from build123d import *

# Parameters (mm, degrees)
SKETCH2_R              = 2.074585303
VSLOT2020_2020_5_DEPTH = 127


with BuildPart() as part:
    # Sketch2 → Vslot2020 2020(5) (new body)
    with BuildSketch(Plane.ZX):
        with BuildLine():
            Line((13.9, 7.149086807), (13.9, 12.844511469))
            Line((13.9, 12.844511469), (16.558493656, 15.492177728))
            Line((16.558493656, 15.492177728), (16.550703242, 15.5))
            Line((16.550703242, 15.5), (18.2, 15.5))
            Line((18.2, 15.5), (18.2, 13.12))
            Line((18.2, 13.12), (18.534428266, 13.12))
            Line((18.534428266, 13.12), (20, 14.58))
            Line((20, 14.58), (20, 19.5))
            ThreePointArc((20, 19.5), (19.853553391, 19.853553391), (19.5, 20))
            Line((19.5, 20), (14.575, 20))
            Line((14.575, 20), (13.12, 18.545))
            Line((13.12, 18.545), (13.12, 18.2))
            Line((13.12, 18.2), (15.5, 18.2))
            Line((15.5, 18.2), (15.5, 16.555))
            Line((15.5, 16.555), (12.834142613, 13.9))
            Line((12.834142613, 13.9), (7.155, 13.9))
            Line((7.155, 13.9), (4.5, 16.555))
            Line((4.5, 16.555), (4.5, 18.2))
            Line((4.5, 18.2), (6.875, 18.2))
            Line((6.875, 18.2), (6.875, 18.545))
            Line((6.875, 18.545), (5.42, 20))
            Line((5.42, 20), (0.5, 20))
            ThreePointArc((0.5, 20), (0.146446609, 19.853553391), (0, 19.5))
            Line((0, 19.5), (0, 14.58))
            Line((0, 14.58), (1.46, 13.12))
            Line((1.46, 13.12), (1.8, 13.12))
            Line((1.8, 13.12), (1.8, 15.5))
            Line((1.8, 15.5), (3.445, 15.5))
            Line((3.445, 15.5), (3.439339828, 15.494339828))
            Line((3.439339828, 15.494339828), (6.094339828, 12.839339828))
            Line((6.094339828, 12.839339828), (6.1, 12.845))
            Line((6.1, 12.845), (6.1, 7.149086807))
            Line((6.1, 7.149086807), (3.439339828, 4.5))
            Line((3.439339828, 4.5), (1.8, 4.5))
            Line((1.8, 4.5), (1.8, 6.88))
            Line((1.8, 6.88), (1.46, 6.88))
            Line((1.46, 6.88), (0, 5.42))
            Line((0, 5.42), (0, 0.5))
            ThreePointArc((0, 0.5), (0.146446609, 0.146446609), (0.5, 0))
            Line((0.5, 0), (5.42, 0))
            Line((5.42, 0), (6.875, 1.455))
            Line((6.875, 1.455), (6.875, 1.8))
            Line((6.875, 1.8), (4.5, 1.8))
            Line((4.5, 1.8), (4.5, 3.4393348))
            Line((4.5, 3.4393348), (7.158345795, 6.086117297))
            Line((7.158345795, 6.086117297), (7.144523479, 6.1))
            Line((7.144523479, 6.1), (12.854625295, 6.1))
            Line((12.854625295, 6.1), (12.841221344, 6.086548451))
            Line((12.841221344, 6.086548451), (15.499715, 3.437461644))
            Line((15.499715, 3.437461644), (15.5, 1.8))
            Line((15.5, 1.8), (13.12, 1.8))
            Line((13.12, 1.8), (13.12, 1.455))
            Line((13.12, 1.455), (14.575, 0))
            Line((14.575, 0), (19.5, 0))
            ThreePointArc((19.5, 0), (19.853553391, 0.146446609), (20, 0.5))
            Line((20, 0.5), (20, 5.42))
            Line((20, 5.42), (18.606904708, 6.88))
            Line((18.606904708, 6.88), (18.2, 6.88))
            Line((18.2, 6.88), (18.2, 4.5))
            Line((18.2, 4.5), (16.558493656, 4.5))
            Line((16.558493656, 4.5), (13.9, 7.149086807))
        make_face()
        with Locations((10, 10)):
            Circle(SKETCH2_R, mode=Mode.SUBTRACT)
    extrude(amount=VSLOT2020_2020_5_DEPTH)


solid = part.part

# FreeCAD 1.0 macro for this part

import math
import FreeCAD as App
import Part
import Sketcher

V = App.Vector

doc = App.newDocument("Part")
body = doc.addObject("PartDesign::Body", "Body")

sketch1 = body.newObject("Sketcher::SketchObject", "Sketch")
sketch1.AttachmentSupport = (doc.getObject("XZ_Plane"), [""])
sketch1.MapMode = "FlatFace"
sketch1.addGeometry(Part.LineSegment(V(7.149, 13.9, 0), V(12.845, 13.9, 0)), False)
sketch1.addGeometry(Part.LineSegment(V(12.845, 13.9, 0), V(15.492, 16.558, 0)), False)
sketch1.addGeometry(Part.LineSegment(V(15.492, 16.558, 0), V(15.5, 16.551, 0)), False)
sketch1.addGeometry(Part.LineSegment(V(15.5, 16.551, 0), V(15.5, 18.2, 0)), False)
sketch1.addGeometry(Part.LineSegment(V(15.5, 18.2, 0), V(13.12, 18.2, 0)), False)
sketch1.addGeometry(Part.LineSegment(V(13.12, 18.2, 0), V(13.12, 18.534, 0)), False)
sketch1.addGeometry(Part.LineSegment(V(13.12, 18.534, 0), V(14.58, 20, 0)), False)
sketch1.addGeometry(Part.LineSegment(V(14.58, 20, 0), V(19.5, 20, 0)), False)
sketch1.addGeometry(Part.ArcOfCircle(Part.Circle(V(19.5, 19.5, 0), V(0, 0, 1), 0.5), math.radians(0), math.radians(90)), False)
sketch1.addGeometry(Part.LineSegment(V(20, 19.5, 0), V(20, 14.575, 0)), False)
sketch1.addGeometry(Part.LineSegment(V(20, 14.575, 0), V(18.545, 13.12, 0)), False)
sketch1.addGeometry(Part.LineSegment(V(18.545, 13.12, 0), V(18.2, 13.12, 0)), False)
sketch1.addGeometry(Part.LineSegment(V(18.2, 13.12, 0), V(18.2, 15.5, 0)), False)
sketch1.addGeometry(Part.LineSegment(V(18.2, 15.5, 0), V(16.555, 15.5, 0)), False)
sketch1.addGeometry(Part.LineSegment(V(16.555, 15.5, 0), V(13.9, 12.834, 0)), False)
sketch1.addGeometry(Part.LineSegment(V(13.9, 12.834, 0), V(13.9, 7.155, 0)), False)
sketch1.addGeometry(Part.LineSegment(V(13.9, 7.155, 0), V(16.555, 4.5, 0)), False)
sketch1.addGeometry(Part.LineSegment(V(16.555, 4.5, 0), V(18.2, 4.5, 0)), False)
sketch1.addGeometry(Part.LineSegment(V(18.2, 4.5, 0), V(18.2, 6.875, 0)), False)
sketch1.addGeometry(Part.LineSegment(V(18.2, 6.875, 0), V(18.545, 6.875, 0)), False)
sketch1.addGeometry(Part.LineSegment(V(18.545, 6.875, 0), V(20, 5.42, 0)), False)
sketch1.addGeometry(Part.LineSegment(V(20, 5.42, 0), V(20, 0.5, 0)), False)
sketch1.addGeometry(Part.ArcOfCircle(Part.Circle(V(19.5, 0.5, 0), V(0, 0, 1), 0.5), math.radians(-90), math.radians(0)), False)
sketch1.addGeometry(Part.LineSegment(V(19.5, 0, 0), V(14.58, 0, 0)), False)
sketch1.addGeometry(Part.LineSegment(V(14.58, 0, 0), V(13.12, 1.46, 0)), False)
sketch1.addGeometry(Part.LineSegment(V(13.12, 1.46, 0), V(13.12, 1.8, 0)), False)
sketch1.addGeometry(Part.LineSegment(V(13.12, 1.8, 0), V(15.5, 1.8, 0)), False)
sketch1.addGeometry(Part.LineSegment(V(15.5, 1.8, 0), V(15.5, 3.445, 0)), False)
sketch1.addGeometry(Part.LineSegment(V(15.5, 3.445, 0), V(15.494, 3.439, 0)), False)
sketch1.addGeometry(Part.LineSegment(V(15.494, 3.439, 0), V(12.839, 6.094, 0)), False)
sketch1.addGeometry(Part.LineSegment(V(12.839, 6.094, 0), V(12.845, 6.1, 0)), False)
sketch1.addGeometry(Part.LineSegment(V(12.845, 6.1, 0), V(7.149, 6.1, 0)), False)
sketch1.addGeometry(Part.LineSegment(V(7.149, 6.1, 0), V(4.5, 3.439, 0)), False)
sketch1.addGeometry(Part.LineSegment(V(4.5, 3.439, 0), V(4.5, 1.8, 0)), False)
sketch1.addGeometry(Part.LineSegment(V(4.5, 1.8, 0), V(6.88, 1.8, 0)), False)
sketch1.addGeometry(Part.LineSegment(V(6.88, 1.8, 0), V(6.88, 1.46, 0)), False)
sketch1.addGeometry(Part.LineSegment(V(6.88, 1.46, 0), V(5.42, 0, 0)), False)
sketch1.addGeometry(Part.LineSegment(V(5.42, 0, 0), V(0.5, 0, 0)), False)
sketch1.addGeometry(Part.ArcOfCircle(Part.Circle(V(0.5, 0.5, 0), V(0, 0, 1), 0.5), math.radians(180), math.radians(270)), False)
sketch1.addGeometry(Part.LineSegment(V(0, 0.5, 0), V(0, 5.42, 0)), False)
sketch1.addGeometry(Part.LineSegment(V(0, 5.42, 0), V(1.455, 6.875, 0)), False)
sketch1.addGeometry(Part.LineSegment(V(1.455, 6.875, 0), V(1.8, 6.875, 0)), False)
sketch1.addGeometry(Part.LineSegment(V(1.8, 6.875, 0), V(1.8, 4.5, 0)), False)
sketch1.addGeometry(Part.LineSegment(V(1.8, 4.5, 0), V(3.439, 4.5, 0)), False)
sketch1.addGeometry(Part.LineSegment(V(3.439, 4.5, 0), V(6.086, 7.158, 0)), False)
sketch1.addGeometry(Part.LineSegment(V(6.086, 7.158, 0), V(6.1, 7.145, 0)), False)
sketch1.addGeometry(Part.LineSegment(V(6.1, 7.145, 0), V(6.1, 12.855, 0)), False)
sketch1.addGeometry(Part.LineSegment(V(6.1, 12.855, 0), V(6.087, 12.841, 0)), False)
sketch1.addGeometry(Part.LineSegment(V(6.087, 12.841, 0), V(3.437, 15.5, 0)), False)
sketch1.addGeometry(Part.LineSegment(V(3.437, 15.5, 0), V(1.8, 15.5, 0)), False)
sketch1.addGeometry(Part.LineSegment(V(1.8, 15.5, 0), V(1.8, 13.12, 0)), False)
sketch1.addGeometry(Part.LineSegment(V(1.8, 13.12, 0), V(1.455, 13.12, 0)), False)
sketch1.addGeometry(Part.LineSegment(V(1.455, 13.12, 0), V(0, 14.575, 0)), False)
sketch1.addGeometry(Part.LineSegment(V(0, 14.575, 0), V(0, 19.5, 0)), False)
sketch1.addGeometry(Part.ArcOfCircle(Part.Circle(V(0.5, 19.5, 0), V(0, 0, 1), 0.5), math.radians(90), math.radians(180)), False)
sketch1.addGeometry(Part.LineSegment(V(0.5, 20, 0), V(5.42, 20, 0)), False)
sketch1.addGeometry(Part.LineSegment(V(5.42, 20, 0), V(6.88, 18.607, 0)), False)
sketch1.addGeometry(Part.LineSegment(V(6.88, 18.607, 0), V(6.88, 18.2, 0)), False)
sketch1.addGeometry(Part.LineSegment(V(6.88, 18.2, 0), V(4.5, 18.2, 0)), False)
sketch1.addGeometry(Part.LineSegment(V(4.5, 18.2, 0), V(4.5, 16.558, 0)), False)
sketch1.addGeometry(Part.LineSegment(V(4.5, 16.558, 0), V(7.149, 13.9, 0)), False)
sketch1.addGeometry(Part.Circle(V(10, 10, 0), V(0, 0, 1), 2.075), False)
sketch1.addConstraint(Sketcher.Constraint("Coincident", 0, 2, 1, 1))
sketch1.addConstraint(Sketcher.Constraint("Coincident", 1, 2, 2, 1))
sketch1.addConstraint(Sketcher.Constraint("Coincident", 2, 2, 3, 1))
sketch1.addConstraint(Sketcher.Constraint("Coincident", 3, 2, 4, 1))
sketch1.addConstraint(Sketcher.Constraint("Coincident", 4, 2, 5, 1))
sketch1.addConstraint(Sketcher.Constraint("Coincident", 5, 2, 6, 1))
sketch1.addConstraint(Sketcher.Constraint("Coincident", 6, 2, 7, 1))
sketch1.addConstraint(Sketcher.Constraint("Tangent", 7, 2, 8, 2))
sketch1.addConstraint(Sketcher.Constraint("Tangent", 8, 1, 9, 1))
sketch1.addConstraint(Sketcher.Constraint("Coincident", 9, 2, 10, 1))
sketch1.addConstraint(Sketcher.Constraint("Coincident", 10, 2, 11, 1))
sketch1.addConstraint(Sketcher.Constraint("Coincident", 11, 2, 12, 1))
sketch1.addConstraint(Sketcher.Constraint("Coincident", 12, 2, 13, 1))
sketch1.addConstraint(Sketcher.Constraint("Coincident", 13, 2, 14, 1))
sketch1.addConstraint(Sketcher.Constraint("Coincident", 14, 2, 15, 1))
sketch1.addConstraint(Sketcher.Constraint("Coincident", 15, 2, 16, 1))
sketch1.addConstraint(Sketcher.Constraint("Coincident", 16, 2, 17, 1))
sketch1.addConstraint(Sketcher.Constraint("Coincident", 17, 2, 18, 1))
sketch1.addConstraint(Sketcher.Constraint("Coincident", 18, 2, 19, 1))
sketch1.addConstraint(Sketcher.Constraint("Coincident", 19, 2, 20, 1))
sketch1.addConstraint(Sketcher.Constraint("Coincident", 20, 2, 21, 1))
sketch1.addConstraint(Sketcher.Constraint("Tangent", 21, 2, 22, 2))
sketch1.addConstraint(Sketcher.Constraint("Tangent", 22, 1, 23, 1))
sketch1.addConstraint(Sketcher.Constraint("Coincident", 23, 2, 24, 1))
sketch1.addConstraint(Sketcher.Constraint("Coincident", 24, 2, 25, 1))
sketch1.addConstraint(Sketcher.Constraint("Coincident", 25, 2, 26, 1))
sketch1.addConstraint(Sketcher.Constraint("Coincident", 26, 2, 27, 1))
sketch1.addConstraint(Sketcher.Constraint("Coincident", 27, 2, 28, 1))
sketch1.addConstraint(Sketcher.Constraint("Coincident", 28, 2, 29, 1))
sketch1.addConstraint(Sketcher.Constraint("Coincident", 29, 2, 30, 1))
sketch1.addConstraint(Sketcher.Constraint("Coincident", 30, 2, 31, 1))
sketch1.addConstraint(Sketcher.Constraint("Coincident", 31, 2, 32, 1))
sketch1.addConstraint(Sketcher.Constraint("Coincident", 32, 2, 33, 1))
sketch1.addConstraint(Sketcher.Constraint("Coincident", 33, 2, 34, 1))
sketch1.addConstraint(Sketcher.Constraint("Coincident", 34, 2, 35, 1))
sketch1.addConstraint(Sketcher.Constraint("Coincident", 35, 2, 36, 1))
sketch1.addConstraint(Sketcher.Constraint("Coincident", 36, 2, 37, 1))
sketch1.addConstraint(Sketcher.Constraint("Tangent", 37, 2, 38, 2))
sketch1.addConstraint(Sketcher.Constraint("Tangent", 38, 1, 39, 1))
sketch1.addConstraint(Sketcher.Constraint("Coincident", 39, 2, 40, 1))
sketch1.addConstraint(Sketcher.Constraint("Coincident", 40, 2, 41, 1))
sketch1.addConstraint(Sketcher.Constraint("Coincident", 41, 2, 42, 1))
sketch1.addConstraint(Sketcher.Constraint("Coincident", 42, 2, 43, 1))
sketch1.addConstraint(Sketcher.Constraint("Coincident", 43, 2, 44, 1))
sketch1.addConstraint(Sketcher.Constraint("Coincident", 44, 2, 45, 1))
sketch1.addConstraint(Sketcher.Constraint("Coincident", 45, 2, 46, 1))
sketch1.addConstraint(Sketcher.Constraint("Coincident", 46, 2, 47, 1))
sketch1.addConstraint(Sketcher.Constraint("Coincident", 47, 2, 48, 1))
sketch1.addConstraint(Sketcher.Constraint("Coincident", 48, 2, 49, 1))
sketch1.addConstraint(Sketcher.Constraint("Coincident", 49, 2, 50, 1))
sketch1.addConstraint(Sketcher.Constraint("Coincident", 50, 2, 51, 1))
sketch1.addConstraint(Sketcher.Constraint("Coincident", 51, 2, 52, 1))
sketch1.addConstraint(Sketcher.Constraint("Coincident", 52, 2, 53, 1))
sketch1.addConstraint(Sketcher.Constraint("Tangent", 53, 2, 54, 2))
sketch1.addConstraint(Sketcher.Constraint("Tangent", 54, 1, 55, 1))
sketch1.addConstraint(Sketcher.Constraint("Coincident", 55, 2, 56, 1))
sketch1.addConstraint(Sketcher.Constraint("Coincident", 56, 2, 57, 1))
sketch1.addConstraint(Sketcher.Constraint("Coincident", 57, 2, 58, 1))
sketch1.addConstraint(Sketcher.Constraint("Coincident", 58, 2, 59, 1))
sketch1.addConstraint(Sketcher.Constraint("Coincident", 59, 2, 60, 1))
sketch1.addConstraint(Sketcher.Constraint("Coincident", 60, 2, 0, 1))
sketch1.addConstraint(Sketcher.Constraint("Horizontal", 0))
sketch1.addConstraint(Sketcher.Constraint("Vertical", 3))
sketch1.addConstraint(Sketcher.Constraint("Horizontal", 4))
sketch1.addConstraint(Sketcher.Constraint("Vertical", 5))
sketch1.addConstraint(Sketcher.Constraint("Horizontal", 7))
sketch1.addConstraint(Sketcher.Constraint("Vertical", 9))
sketch1.addConstraint(Sketcher.Constraint("Horizontal", 11))
sketch1.addConstraint(Sketcher.Constraint("Vertical", 12))
sketch1.addConstraint(Sketcher.Constraint("Horizontal", 13))
sketch1.addConstraint(Sketcher.Constraint("Vertical", 15))
sketch1.addConstraint(Sketcher.Constraint("Horizontal", 17))
sketch1.addConstraint(Sketcher.Constraint("Vertical", 18))
sketch1.addConstraint(Sketcher.Constraint("Horizontal", 19))
sketch1.addConstraint(Sketcher.Constraint("Vertical", 21))
sketch1.addConstraint(Sketcher.Constraint("Horizontal", 23))
sketch1.addConstraint(Sketcher.Constraint("Vertical", 25))
sketch1.addConstraint(Sketcher.Constraint("Horizontal", 26))
sketch1.addConstraint(Sketcher.Constraint("Vertical", 27))
sketch1.addConstraint(Sketcher.Constraint("Horizontal", 31))
sketch1.addConstraint(Sketcher.Constraint("Vertical", 33))
sketch1.addConstraint(Sketcher.Constraint("Horizontal", 34))
sketch1.addConstraint(Sketcher.Constraint("Vertical", 35))
sketch1.addConstraint(Sketcher.Constraint("Horizontal", 37))
sketch1.addConstraint(Sketcher.Constraint("Vertical", 39))
sketch1.addConstraint(Sketcher.Constraint("Horizontal", 41))
sketch1.addConstraint(Sketcher.Constraint("Vertical", 42))
sketch1.addConstraint(Sketcher.Constraint("Horizontal", 43))
sketch1.addConstraint(Sketcher.Constraint("Vertical", 46))
sketch1.addConstraint(Sketcher.Constraint("Vertical", 50))
sketch1.addConstraint(Sketcher.Constraint("Horizontal", 51))
sketch1.addConstraint(Sketcher.Constraint("Vertical", 53))
sketch1.addConstraint(Sketcher.Constraint("Horizontal", 55))
sketch1.addConstraint(Sketcher.Constraint("Vertical", 57))
sketch1.addConstraint(Sketcher.Constraint("Horizontal", 58))
sketch1.addConstraint(Sketcher.Constraint("Vertical", 59))
sketch1.addConstraint(Sketcher.Constraint("Equal", 8, 22))
sketch1.addConstraint(Sketcher.Constraint("Equal", 22, 38))
sketch1.addConstraint(Sketcher.Constraint("Equal", 38, 54))
sketch1.addConstraint(Sketcher.Constraint("PointOnObject", 22, 1, -1))
sketch1.addConstraint(Sketcher.Constraint("PointOnObject", 36, 2, -1))
sketch1.addConstraint(Sketcher.Constraint("PointOnObject", 38, 1, -2))
sketch1.addConstraint(Sketcher.Constraint("PointOnObject", 52, 2, -2))
sketch1.addConstraint(Sketcher.Constraint("Perpendicular", 1, 2))
sketch1.addConstraint(Sketcher.Constraint("Perpendicular", 2, 14))
sketch1.addConstraint(Sketcher.Constraint("Perpendicular", 10, 16))
sketch1.addConstraint(Sketcher.Constraint("Parallel", 16, 20))
sketch1.addConstraint(Sketcher.Constraint("Parallel", 20, 24))
sketch1.addConstraint(Sketcher.Constraint("Perpendicular", 24, 28))
sketch1.addConstraint(Sketcher.Constraint("Parallel", 24, 29))
sketch1.addConstraint(Sketcher.Constraint("Perpendicular", 29, 30))
sketch1.addConstraint(Sketcher.Constraint("Parallel", 30, 36))
sketch1.addConstraint(Sketcher.Constraint("Parallel", 36, 40))
sketch1.addConstraint(Sketcher.Constraint("Parallel", 32, 44))
sketch1.addConstraint(Sketcher.Constraint("Perpendicular", 44, 45))
sketch1.addConstraint(Sketcher.Constraint("Perpendicular", 47, 48))
sketch1.addConstraint(Sketcher.Constraint("Perpendicular", 40, 52))
sketch1.addConstraint(Sketcher.Constraint("Parallel", 48, 60))
sketch1.addConstraint(Sketcher.Constraint("Horizontal", 8, 3, 54, 3))
sketch1.addConstraint(Sketcher.Constraint("Horizontal", 28, 2, 32, 2))
sketch1.addConstraint(Sketcher.Constraint("Horizontal", 26, 2, 33, 2))
sketch1.addConstraint(Sketcher.Constraint("Horizontal", 24, 2, 35, 2))
sketch1.addConstraint(Sketcher.Constraint("Horizontal", 20, 2, 39, 2))
sketch1.addConstraint(Sketcher.Constraint("Horizontal", 19, 2, 40, 2))
sketch1.addConstraint(Sketcher.Constraint("Horizontal", 17, 2, 42, 2))
sketch1.addConstraint(Sketcher.Constraint("Horizontal", 13, 2, 49, 2))
sketch1.addConstraint(Sketcher.Constraint("Horizontal", 11, 2, 50, 2))
sketch1.addConstraint(Sketcher.Constraint("Horizontal", 9, 2, 52, 2))
sketch1.addConstraint(Sketcher.Constraint("Horizontal", 4, 2, 57, 2))
sketch1.addConstraint(Sketcher.Constraint("Horizontal", 1, 2, 59, 2))
sketch1.addConstraint(Sketcher.Constraint("Vertical", 8, 3, 22, 3))
sketch1.addConstraint(Sketcher.Constraint("Vertical", 13, 2, 16, 2))
sketch1.addConstraint(Sketcher.Constraint("Vertical", 12, 2, 17, 2))
sketch1.addConstraint(Sketcher.Constraint("Vertical", 10, 2, 19, 2))
sketch1.addConstraint(Sketcher.Constraint("Vertical", 6, 2, 23, 2))
sketch1.addConstraint(Sketcher.Constraint("Vertical", 5, 2, 24, 2))
sketch1.addConstraint(Sketcher.Constraint("Vertical", 3, 2, 26, 2))
sketch1.addConstraint(Sketcher.Constraint("Vertical", 42, 2, 49, 2))
sketch1.addConstraint(Sketcher.Constraint("Vertical", 40, 2, 51, 2))
sketch1.addConstraint(Sketcher.Constraint("Vertical", 36, 2, 55, 2))
sketch1.addConstraint(Sketcher.Constraint("Vertical", 35, 2, 56, 2))
sketch1.addConstraint(Sketcher.Constraint("Vertical", 33, 2, 58, 2))
sketch1.addConstraint(Sketcher.Constraint("Vertical", 31, 2, 60, 2))
sketch1.addConstraint(Sketcher.Constraint("Equal", 26, 34))
sketch1.addConstraint(Sketcher.Constraint("Equal", 23, 37))
sketch1.addConstraint(Sketcher.Constraint("Equal", 19, 41))
sketch1.addConstraint(Sketcher.Constraint("Equal", 58, 12))
sketch1.addConstraint(Sketcher.Constraint("Equal", 55, 21))
sketch1.addConstraint(Sketcher.Constraint("Equal", 17, 27))
sketch1.addConstraint(Sketcher.Constraint("Equal", 16, 29))
sketch1.addConstraint(Sketcher.Constraint("Equal", 28, 30))
sketch1.addConstraint(Sketcher.Constraint("Equal", 48, 60))
sketch1.addConstraint(Sketcher.Constraint("Radius", 8, 0.5))
sketch1.addConstraint(Sketcher.Constraint("DistanceX", -1, 1, 61, 3, 10.0))
sketch1.addConstraint(Sketcher.Constraint("DistanceY", -1, 1, 61, 3, 10.0))
sketch1.addConstraint(Sketcher.Constraint("DistanceY", -1, 1, 6, 2, 20.0))
sketch1.addConstraint(Sketcher.Constraint("DistanceX", -1, 1, 8, 1, 20.0))
sketch1.addConstraint(Sketcher.Constraint("DistanceX", 4, 2, 4, 1, 2.38))
sketch1.addConstraint(Sketcher.Constraint("DistanceX", 7, 1, 7, 2, 4.92))
sketch1.addConstraint(Sketcher.Constraint("DistanceY", 25, 1, 25, 2, 0.34))
sketch1.addConstraint(Sketcher.Constraint("DistanceY", -1, 1, 0, 2, 13.9))
sketch1.addConstraint(Sketcher.Constraint("DistanceX", -1, 1, 2, 2, 15.5))
sketch1.addConstraint(Sketcher.Constraint("DistanceY", -1, 1, 3, 2, 18.2))
sketch1.addConstraint(Sketcher.Constraint("DistanceX", -1, 1, 11, 2, 18.2))
sketch1.addConstraint(Sketcher.Constraint("DistanceY", -1, 1, 12, 2, 15.5))
sketch1.addConstraint(Sketcher.Constraint("DistanceX", -1, 1, 14, 2, 13.9))
sketch1.addConstraint(Sketcher.Constraint("DistanceY", -1, 1, 16, 2, 4.5))
sketch1.addConstraint(Sketcher.Constraint("DistanceX", -1, 1, 45, 2, 6.1))
sketch1.addConstraint(Sketcher.Constraint("Diameter", 61, 4.149171))
sketch1.addConstraint(Sketcher.Constraint("DistanceX", 11, 2, 11, 1, 0.345))
sketch1.addConstraint(Sketcher.Constraint("DistanceX", 13, 2, 13, 1, 1.645))
sketch1.addConstraint(Sketcher.Constraint("DistanceY", 46, 1, 46, 2, 5.710102))
sketch1.addConstraint(Sketcher.Constraint("Distance", 44, 3.751301))
sketch1.addConstraint(Sketcher.Constraint("DistanceY", 5, 1, 5, 2, 0.334428))
sketch1.addConstraint(Sketcher.Constraint("DistanceY", 33, 2, 33, 1, 1.63934))
sketch1.addConstraint(Sketcher.Constraint("Distance", 1, 3.752029))
sketch1.addConstraint(Sketcher.Constraint("Distance", 2, 0.01104))
sketch1.addConstraint(Sketcher.Constraint("Distance", 45, 0.01959))
sketch1.addConstraint(Sketcher.Constraint("Distance", 47, 0.01899))
sketch1.addConstraint(Sketcher.Constraint("Distance", 49, 1.637462))
sketch1.addConstraint(Sketcher.Constraint("DistanceX", 0, 1, 0, 2, 5.695425))
sketch1.addConstraint(Sketcher.Constraint("DistanceY", 57, 2, 57, 1, 0.406905))
pad1 = body.newObject("PartDesign::Pad", "Pad")
pad1.Profile = sketch1
pad1.Length = 127
pad1.Reversed = True

doc.recompute()
